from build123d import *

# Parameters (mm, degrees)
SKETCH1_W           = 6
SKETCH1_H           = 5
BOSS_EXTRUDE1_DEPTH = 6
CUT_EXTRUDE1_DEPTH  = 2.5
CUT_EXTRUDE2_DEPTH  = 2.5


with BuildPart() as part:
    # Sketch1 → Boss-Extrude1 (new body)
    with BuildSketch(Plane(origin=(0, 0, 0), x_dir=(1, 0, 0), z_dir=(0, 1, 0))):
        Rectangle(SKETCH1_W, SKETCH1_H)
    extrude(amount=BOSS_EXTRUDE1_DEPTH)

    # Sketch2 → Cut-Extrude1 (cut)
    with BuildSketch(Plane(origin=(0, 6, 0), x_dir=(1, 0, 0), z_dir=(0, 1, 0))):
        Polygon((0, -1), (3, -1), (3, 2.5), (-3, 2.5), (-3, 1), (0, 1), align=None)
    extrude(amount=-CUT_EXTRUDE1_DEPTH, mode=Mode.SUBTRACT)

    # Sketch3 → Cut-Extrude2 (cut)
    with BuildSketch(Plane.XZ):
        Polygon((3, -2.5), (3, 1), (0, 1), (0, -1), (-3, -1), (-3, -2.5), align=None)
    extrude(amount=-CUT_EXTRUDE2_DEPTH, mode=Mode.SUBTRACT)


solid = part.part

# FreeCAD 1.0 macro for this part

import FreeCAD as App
import Part
import Sketcher
Q = App.Units.Quantity

doc = App.newDocument("Part")
body = doc.addObject("PartDesign::Body", "Body")

# Sketch on XZ plane
sketch1 = doc.addObject("Sketcher::SketchObject", "Sketch")
body.addObject(sketch1)
sketch1.AttachmentSupport = (doc.XZ_Plane, [""])
sketch1.MapMode = "FlatFace"
sketch1.addGeometry([
    Part.LineSegment(App.Vector(-3, -2, 0), App.Vector(-3, 2, 0)),
    Part.LineSegment(App.Vector(-3, 2, 0), App.Vector(3, 2, 0)),
    Part.LineSegment(App.Vector(3, 2, 0), App.Vector(3, -2, 0)),
    Part.LineSegment(App.Vector(3, -2, 0), App.Vector(-3, -2, 0)),
], False)
sketch1.addConstraint([
    Sketcher.Constraint("Coincident", 0, 2, 1, 1),
    Sketcher.Constraint("Coincident", 1, 2, 2, 1),
    Sketcher.Constraint("Coincident", 2, 2, 3, 1),
    Sketcher.Constraint("Coincident", 3, 2, 0, 1),
    Sketcher.Constraint("Vertical", 0),
    Sketcher.Constraint("Horizontal", 1),
    Sketcher.Constraint("Vertical", 2),
    Sketcher.Constraint("Horizontal", 3),
    Sketcher.Constraint("Symmetric", 0, 2, 2, 2, -1, 1),
    Sketcher.Constraint("DistanceX", 1, 1, 1, 2, Q("6 mm")),
    Sketcher.Constraint("DistanceY", 0, 1, 0, 2, Q("5 mm")),
])
pad1 = doc.addObject("PartDesign::Pad", "Pad")
body.addObject(pad1)
pad1.Profile = sketch1
pad1.Length = 6
pad1.Reversed = True

# Sketch on XZ plane
sketch2 = doc.addObject("Sketcher::SketchObject", "Sketch001")
body.addObject(sketch2)
sketch2.AttachmentSupport = (doc.XZ_Plane, [""])
sketch2.MapMode = "FlatFace"
sketch2.AttachmentOffset = App.Placement(App.Vector(0, 0, -6), App.Rotation())
sketch2.addGeometry([
    Part.LineSegment(App.Vector(0, 1, 0), App.Vector(3, 1, 0)),  # 0
    Part.LineSegment(App.Vector(3, 1, 0), App.Vector(3, -2.5, 0)),  # 1
    Part.LineSegment(App.Vector(3, -2.5, 0), App.Vector(-3, -2.5, 0)),  # 2
    Part.LineSegment(App.Vector(-3, -2.5, 0), App.Vector(-3, -1, 0)),  # 3
    Part.LineSegment(App.Vector(-3, -1, 0), App.Vector(0, -1, 0)),  # 4
    Part.LineSegment(App.Vector(0, -1, 0), App.Vector(0, 1, 0)),  # 5
], False)
sketch2.addConstraint([
    Sketcher.Constraint("Coincident", 0, 2, 1, 1),
    Sketcher.Constraint("Coincident", 1, 2, 2, 1),
    Sketcher.Constraint("Coincident", 2, 2, 3, 1),
    Sketcher.Constraint("Coincident", 3, 2, 4, 1),
    Sketcher.Constraint("Coincident", 4, 2, 5, 1),
    Sketcher.Constraint("Coincident", 5, 2, 0, 1),
    Sketcher.Constraint("Horizontal", 0),
    Sketcher.Constraint("Vertical", 1),
    Sketcher.Constraint("Horizontal", 2),
    Sketcher.Constraint("Vertical", 3),
    Sketcher.Constraint("Horizontal", 4),
    Sketcher.Constraint("Vertical", 5),
    Sketcher.Constraint("Symmetric", 0, 2, 3, 2, -1, 1),
    Sketcher.Constraint("PointOnObject", 4, 2, -2),
    Sketcher.Constraint("DistanceX", 0, 1, 0, 2, Q("3 mm")),
    Sketcher.Constraint("DistanceY", 5, 1, 5, 2, Q("2 mm")),
    Sketcher.Constraint("DistanceY", 1, 2, 1, 1, Q("3.5 mm")),
])
pocket1 = doc.addObject("PartDesign::Pocket", "Pocket")
body.addObject(pocket1)
pocket1.Profile = sketch2
pocket1.Length = 2.5
pocket1.Reversed = True

# Sketch on XZ plane
sketch3 = doc.addObject("Sketcher::SketchObject", "Sketch002")
body.addObject(sketch3)
sketch3.AttachmentSupport = (doc.XZ_Plane, [""])
sketch3.MapMode = "FlatFace"
sketch3.addGeometry([
    Part.LineSegment(App.Vector(3, -2.5, 0), App.Vector(3, 1, 0)),  # 0
    Part.LineSegment(App.Vector(3, 1, 0), App.Vector(0, 1, 0)),  # 1
    Part.LineSegment(App.Vector(0, 1, 0), App.Vector(0, -1, 0)),  # 2
    Part.LineSegment(App.Vector(0, -1, 0), App.Vector(-3, -1, 0)),  # 3
    Part.LineSegment(App.Vector(-3, -1, 0), App.Vector(-3, -2.5, 0)),  # 4
    Part.LineSegment(App.Vector(-3, -2.5, 0), App.Vector(3, -2.5, 0)),  # 5
], False)
sketch3.addConstraint([
    Sketcher.Constraint("Coincident", 0, 2, 1, 1),
    Sketcher.Constraint("Coincident", 1, 2, 2, 1),
    Sketcher.Constraint("Coincident", 2, 2, 3, 1),
    Sketcher.Constraint("Coincident", 3, 2, 4, 1),
    Sketcher.Constraint("Coincident", 4, 2, 5, 1),
    Sketcher.Constraint("Coincident", 5, 2, 0, 1),
    Sketcher.Constraint("Vertical", 0),
    Sketcher.Constraint("Horizontal", 1),
    Sketcher.Constraint("Vertical", 2),
    Sketcher.Constraint("Horizontal", 3),
    Sketcher.Constraint("Vertical", 4),
    Sketcher.Constraint("Horizontal", 5),
    Sketcher.Constraint("Symmetric", 1, 2, 2, 2, -1, 1),
    Sketcher.Constraint("Equal", 1, 3),
    Sketcher.Constraint("DistanceX", 1, 2, 1, 1, Q("3 mm")),
    Sketcher.Constraint("DistanceY", 2, 2, 2, 1, Q("2 mm")),
    Sketcher.Constraint("DistanceY", 0, 1, 0, 2, Q("3.5 mm")),
])
pocket2 = doc.addObject("PartDesign::Pocket", "Pocket001")
body.addObject(pocket2)
pocket2.Profile = sketch3
pocket2.Length = 2.5

doc.recompute()
